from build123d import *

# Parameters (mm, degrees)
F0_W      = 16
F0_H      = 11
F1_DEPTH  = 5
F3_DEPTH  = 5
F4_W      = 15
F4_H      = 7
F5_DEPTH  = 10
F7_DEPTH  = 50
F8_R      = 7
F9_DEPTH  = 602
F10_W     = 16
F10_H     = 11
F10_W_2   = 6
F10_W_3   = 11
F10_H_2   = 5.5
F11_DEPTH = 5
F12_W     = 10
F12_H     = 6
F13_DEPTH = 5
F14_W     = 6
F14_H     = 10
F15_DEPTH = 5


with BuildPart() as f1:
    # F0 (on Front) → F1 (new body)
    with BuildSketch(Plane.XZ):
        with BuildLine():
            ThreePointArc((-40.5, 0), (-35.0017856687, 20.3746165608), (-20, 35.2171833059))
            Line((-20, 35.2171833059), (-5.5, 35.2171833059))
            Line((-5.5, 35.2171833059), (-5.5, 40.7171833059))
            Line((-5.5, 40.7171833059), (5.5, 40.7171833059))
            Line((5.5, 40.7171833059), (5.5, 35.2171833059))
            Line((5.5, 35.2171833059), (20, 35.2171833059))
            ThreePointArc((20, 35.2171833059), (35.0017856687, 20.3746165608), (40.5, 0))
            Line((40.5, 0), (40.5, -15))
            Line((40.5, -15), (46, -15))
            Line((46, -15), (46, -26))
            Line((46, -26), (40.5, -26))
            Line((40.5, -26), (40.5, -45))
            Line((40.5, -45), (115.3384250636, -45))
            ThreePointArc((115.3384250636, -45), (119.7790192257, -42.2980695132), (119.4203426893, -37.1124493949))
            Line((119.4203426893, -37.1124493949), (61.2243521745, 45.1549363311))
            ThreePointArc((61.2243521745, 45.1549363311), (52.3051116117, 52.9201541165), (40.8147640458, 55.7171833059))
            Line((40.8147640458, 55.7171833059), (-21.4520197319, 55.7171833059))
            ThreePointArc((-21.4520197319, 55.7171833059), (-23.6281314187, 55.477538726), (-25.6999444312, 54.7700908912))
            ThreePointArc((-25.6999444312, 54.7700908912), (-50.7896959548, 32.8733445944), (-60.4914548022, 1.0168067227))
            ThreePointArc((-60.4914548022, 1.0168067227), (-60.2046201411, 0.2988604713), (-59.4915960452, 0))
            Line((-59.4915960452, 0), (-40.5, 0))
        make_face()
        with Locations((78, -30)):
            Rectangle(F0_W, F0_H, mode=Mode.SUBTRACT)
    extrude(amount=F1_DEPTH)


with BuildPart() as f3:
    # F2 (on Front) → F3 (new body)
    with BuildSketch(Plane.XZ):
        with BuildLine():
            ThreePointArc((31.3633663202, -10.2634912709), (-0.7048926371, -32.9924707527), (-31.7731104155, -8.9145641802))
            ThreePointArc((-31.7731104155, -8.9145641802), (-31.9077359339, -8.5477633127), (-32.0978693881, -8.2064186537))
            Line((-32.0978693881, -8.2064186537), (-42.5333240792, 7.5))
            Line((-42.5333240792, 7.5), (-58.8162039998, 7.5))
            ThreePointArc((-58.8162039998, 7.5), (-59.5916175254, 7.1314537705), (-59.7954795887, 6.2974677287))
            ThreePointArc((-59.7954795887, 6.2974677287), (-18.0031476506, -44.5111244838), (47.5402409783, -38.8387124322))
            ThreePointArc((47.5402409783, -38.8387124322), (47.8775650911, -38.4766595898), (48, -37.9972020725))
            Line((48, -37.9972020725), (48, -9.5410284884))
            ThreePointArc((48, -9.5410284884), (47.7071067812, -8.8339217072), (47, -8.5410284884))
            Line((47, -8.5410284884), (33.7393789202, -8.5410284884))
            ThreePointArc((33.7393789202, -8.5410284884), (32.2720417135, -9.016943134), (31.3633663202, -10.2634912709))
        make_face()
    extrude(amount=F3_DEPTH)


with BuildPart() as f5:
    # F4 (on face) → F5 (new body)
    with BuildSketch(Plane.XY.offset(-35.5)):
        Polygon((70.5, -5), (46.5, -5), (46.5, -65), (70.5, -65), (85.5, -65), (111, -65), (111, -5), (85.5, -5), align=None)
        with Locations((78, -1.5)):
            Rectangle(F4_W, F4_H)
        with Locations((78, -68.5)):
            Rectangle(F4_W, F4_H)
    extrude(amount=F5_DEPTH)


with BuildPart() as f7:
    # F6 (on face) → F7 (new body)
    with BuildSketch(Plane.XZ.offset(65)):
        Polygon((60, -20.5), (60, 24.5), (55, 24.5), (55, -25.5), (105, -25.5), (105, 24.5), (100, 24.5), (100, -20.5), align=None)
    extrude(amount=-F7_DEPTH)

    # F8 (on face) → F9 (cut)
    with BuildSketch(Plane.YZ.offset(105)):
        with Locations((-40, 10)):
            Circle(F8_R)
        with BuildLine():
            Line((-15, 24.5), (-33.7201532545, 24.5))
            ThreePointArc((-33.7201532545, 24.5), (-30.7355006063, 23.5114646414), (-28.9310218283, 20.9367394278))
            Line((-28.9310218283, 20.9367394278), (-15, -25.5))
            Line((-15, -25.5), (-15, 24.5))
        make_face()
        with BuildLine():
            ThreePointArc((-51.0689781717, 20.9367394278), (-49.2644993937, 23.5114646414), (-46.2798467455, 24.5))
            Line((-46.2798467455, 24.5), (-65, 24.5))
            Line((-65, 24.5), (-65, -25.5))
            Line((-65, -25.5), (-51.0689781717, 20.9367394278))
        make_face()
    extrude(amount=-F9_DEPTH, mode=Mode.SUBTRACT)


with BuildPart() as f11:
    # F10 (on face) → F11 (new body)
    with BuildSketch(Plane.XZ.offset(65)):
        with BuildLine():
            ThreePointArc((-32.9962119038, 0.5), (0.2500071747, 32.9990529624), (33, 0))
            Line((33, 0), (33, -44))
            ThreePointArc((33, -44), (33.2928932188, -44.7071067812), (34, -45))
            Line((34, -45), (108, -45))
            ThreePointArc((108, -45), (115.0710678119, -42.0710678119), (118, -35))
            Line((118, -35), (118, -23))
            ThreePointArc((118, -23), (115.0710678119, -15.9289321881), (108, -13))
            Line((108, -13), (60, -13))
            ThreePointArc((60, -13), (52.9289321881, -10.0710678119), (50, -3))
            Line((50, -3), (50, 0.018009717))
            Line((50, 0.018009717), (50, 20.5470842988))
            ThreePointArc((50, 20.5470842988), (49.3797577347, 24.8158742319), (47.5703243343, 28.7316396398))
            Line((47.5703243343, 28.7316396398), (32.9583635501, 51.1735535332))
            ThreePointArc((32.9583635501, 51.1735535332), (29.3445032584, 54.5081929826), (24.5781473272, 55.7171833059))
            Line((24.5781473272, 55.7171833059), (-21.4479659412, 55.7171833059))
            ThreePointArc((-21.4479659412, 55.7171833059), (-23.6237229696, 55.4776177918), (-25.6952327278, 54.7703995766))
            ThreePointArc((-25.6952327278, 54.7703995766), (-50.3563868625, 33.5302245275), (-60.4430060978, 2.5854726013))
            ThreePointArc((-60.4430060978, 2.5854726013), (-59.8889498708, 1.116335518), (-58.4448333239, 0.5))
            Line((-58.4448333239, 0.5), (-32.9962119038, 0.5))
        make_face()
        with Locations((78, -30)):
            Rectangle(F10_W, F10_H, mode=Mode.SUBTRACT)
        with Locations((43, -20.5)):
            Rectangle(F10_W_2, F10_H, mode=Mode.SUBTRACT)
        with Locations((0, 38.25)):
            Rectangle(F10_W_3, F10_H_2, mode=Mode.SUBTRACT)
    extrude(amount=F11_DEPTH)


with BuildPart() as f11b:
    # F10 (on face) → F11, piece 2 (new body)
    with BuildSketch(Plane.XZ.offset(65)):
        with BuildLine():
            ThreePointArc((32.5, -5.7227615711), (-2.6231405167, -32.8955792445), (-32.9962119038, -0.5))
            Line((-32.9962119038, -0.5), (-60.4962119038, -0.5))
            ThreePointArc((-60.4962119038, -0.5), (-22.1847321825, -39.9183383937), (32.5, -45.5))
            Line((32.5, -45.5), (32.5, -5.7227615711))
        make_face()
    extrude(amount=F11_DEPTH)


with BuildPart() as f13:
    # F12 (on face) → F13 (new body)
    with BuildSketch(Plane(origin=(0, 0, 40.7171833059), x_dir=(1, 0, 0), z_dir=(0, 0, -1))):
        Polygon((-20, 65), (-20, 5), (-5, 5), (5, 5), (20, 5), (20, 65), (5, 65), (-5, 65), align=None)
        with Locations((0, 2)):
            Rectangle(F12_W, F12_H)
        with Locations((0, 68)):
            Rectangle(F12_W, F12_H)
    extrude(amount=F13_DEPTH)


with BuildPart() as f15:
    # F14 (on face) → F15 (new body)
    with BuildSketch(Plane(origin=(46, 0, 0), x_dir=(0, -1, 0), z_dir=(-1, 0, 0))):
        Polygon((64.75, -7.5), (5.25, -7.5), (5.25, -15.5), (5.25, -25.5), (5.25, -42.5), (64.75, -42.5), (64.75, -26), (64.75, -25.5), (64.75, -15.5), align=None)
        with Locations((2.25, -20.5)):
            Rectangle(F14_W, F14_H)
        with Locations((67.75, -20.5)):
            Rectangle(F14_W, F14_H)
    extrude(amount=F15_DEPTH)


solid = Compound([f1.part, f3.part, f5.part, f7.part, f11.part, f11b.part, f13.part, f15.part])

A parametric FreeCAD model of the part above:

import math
import FreeCAD as App
import Part
import Sketcher
Q = App.Units.Quantity

doc = App.newDocument("Part")
params = doc.addObject("Spreadsheet::Sheet", "Params")
for row, (alias, value) in enumerate([
    ("sketch1_radius", "5 mm"),
    ("sketch1_radius2", "25 mm"),
    ("sketch1_radius3", "10 mm"),
    ("sketch1_radius4", "1 mm"),
    ("sketch1_radius5", "40.5 mm"),
    ("pad1_length", "5 mm"),
    ("sketch2_radius", "33 mm"),
    ("sketch2_radius2", "1 mm"),
    ("sketch2_radius3", "2.5 mm"),
    ("pad2_length", "5 mm"),
    ("sketch3_width", "24 mm"),
    ("sketch3_width2", "15 mm"),
    ("sketch3_height", "60 mm"),
    ("sketch3_height2", "7 mm"),
    ("sketch3_width3", "25.5 mm"),
    ("pad3_length", "10 mm"),
    ("sketch4_width", "5 mm"),
    ("sketch4_width2", "50 mm"),
    ("sketch4_height", "45 mm"),
    ("pad4_length", "50 mm"),
    ("sketch5_diameter", "14 mm"),
    ("sketch5_radius", "5 mm"),
    ("sketch5_height", "50 mm"),
    ("pocket1_length", "602 mm"),
    ("sketch6_radius", "33 mm"),
    ("sketch6_radius2", "1 mm"),
    ("sketch6_radius3", "10 mm"),
    ("sketch6_radius4", "15 mm"),
    ("sketch6_radius5", "2 mm"),
    ("pad5_length", "5 mm"),
    ("sketch7_radius", "33 mm"),
    ("sketch7_width", "27.5 mm"),
    ("pad6_length", "5 mm"),
    ("sketch8_width", "15 mm"),
    ("sketch8_width2", "10 mm"),
    ("sketch8_height", "60 mm"),
    ("sketch8_height2", "6 mm"),
    ("pad7_length", "5 mm"),
    ("sketch9_width", "6 mm"),
    ("sketch9_height", "8 mm"),
    ("sketch9_height2", "10 mm"),
    ("sketch9_height3", "17 mm"),
    ("sketch9_width2", "59.5 mm"),
    ("pad8_length", "5 mm"),
], start=1):
    params.set(f"A{row}", alias)
    params.set(f"B{row}", "=" + value)
    params.setAlias(f"B{row}", alias)

body = doc.addObject("PartDesign::Body", "Body")

# Sketch on XZ plane
sketch1 = body.newObject("Sketcher::SketchObject", "Sketch")
sketch1.AttachmentSupport = (doc.getObject("XZ_Plane"), [""])
sketch1.MapMode = "FlatFace"
sketch1.addGeometry([
    Part.ArcOfCircle(Part.Circle(App.Vector(0, 0, 0), App.Vector(0, 0, 1), 40.5), math.radians(119.592442), math.radians(180)),  # 0
    Part.LineSegment(App.Vector(-20, 35.217183, 0), App.Vector(-5.5, 35.217183, 0)),  # 1
    Part.LineSegment(App.Vector(-5.5, 35.217183, 0), App.Vector(-5.5, 40.717183, 0)),  # 2
    Part.LineSegment(App.Vector(-5.5, 40.717183, 0), App.Vector(5.5, 40.717183, 0)),  # 3
    Part.LineSegment(App.Vector(5.5, 40.717183, 0), App.Vector(5.5, 35.217183, 0)),  # 4
    Part.LineSegment(App.Vector(5.5, 35.217183, 0), App.Vector(20, 35.217183, 0)),  # 5
    Part.ArcOfCircle(Part.Circle(App.Vector(0, 0, 0), App.Vector(0, 0, 1), 40.5), math.radians(0), math.radians(60.407558)),  # 6
    Part.LineSegment(App.Vector(40.5, 0, 0), App.Vector(40.5, -15, 0)),  # 7
    Part.LineSegment(App.Vector(40.5, -15, 0), App.Vector(46, -15, 0)),  # 8
    Part.LineSegment(App.Vector(46, -15, 0), App.Vector(46, -26, 0)),  # 9
    Part.LineSegment(App.Vector(46, -26, 0), App.Vector(40.5, -26, 0)),  # 10
    Part.LineSegment(App.Vector(40.5, -26, 0), App.Vector(40.5, -45, 0)),  # 11
    Part.LineSegment(App.Vector(40.5, -45, 0), App.Vector(115.338425, -45, 0)),  # 12
    Part.ArcOfCircle(Part.Circle(App.Vector(115.338425, -40, 0), App.Vector(0, 0, 1), 5), math.radians(-90), math.radians(35.275608)),  # 13
    Part.LineSegment(App.Vector(119.420343, -37.112449, 0), App.Vector(61.224352, 45.154936, 0)),  # 14
    Part.ArcOfCircle(Part.Circle(App.Vector(40.814764, 30.717183, 0), App.Vector(0, 0, 1), 25), math.radians(35.275608), math.radians(90)),  # 15
    Part.LineSegment(App.Vector(40.814764, 55.717183, 0), App.Vector(-21.45202, 55.717183, 0)),  # 16
    Part.ArcOfCircle(Part.Circle(App.Vector(-21.45202, 45.717183, 0), App.Vector(0, 0, 1), 10), math.radians(90), math.radians(115.137528)),  # 17
    Part.ArcOfCircle(Part.Circle(App.Vector(0, 0, 0), App.Vector(0, 0, 1), 60.5), math.radians(115.137528), math.radians(179.037)),  # 18
    Part.ArcOfCircle(Part.Circle(App.Vector(-59.491596, 1, 0), App.Vector(0, 0, 1), 1), math.radians(179.037), math.radians(270)),  # 19
    Part.LineSegment(App.Vector(-59.491596, 0, 0), App.Vector(-40.5, 0, 0)),  # 20
    Part.LineSegment(App.Vector(86, -35.5, 0), App.Vector(70, -35.5, 0)),  # 21
    Part.LineSegment(App.Vector(70, -35.5, 0), App.Vector(70, -24.5, 0)),  # 22
    Part.LineSegment(App.Vector(70, -24.5, 0), App.Vector(86, -24.5, 0)),  # 23
    Part.LineSegment(App.Vector(86, -24.5, 0), App.Vector(86, -35.5, 0)),  # 24
], False)
sketch1.addConstraint([
    Sketcher.Constraint("Coincident", 0, 1, 1, 1),
    Sketcher.Constraint("Coincident", 1, 2, 2, 1),
    Sketcher.Constraint("Coincident", 2, 2, 3, 1),
    Sketcher.Constraint("Coincident", 3, 2, 4, 1),
    Sketcher.Constraint("Coincident", 4, 2, 5, 1),
    Sketcher.Constraint("Coincident", 5, 2, 6, 2),
    Sketcher.Constraint("Tangent", 6, 1, 7, 1),
    Sketcher.Constraint("Coincident", 7, 2, 8, 1),
    Sketcher.Constraint("Coincident", 8, 2, 9, 1),
    Sketcher.Constraint("Coincident", 9, 2, 10, 1),
    Sketcher.Constraint("Coincident", 10, 2, 11, 1),
    Sketcher.Constraint("Coincident", 11, 2, 12, 1),
    Sketcher.Constraint("Tangent", 12, 2, 13, 1),
    Sketcher.Constraint("Tangent", 13, 2, 14, 1),
    Sketcher.Constraint("Tangent", 14, 2, 15, 1),
    Sketcher.Constraint("Tangent", 15, 2, 16, 1),
    Sketcher.Constraint("Tangent", 16, 2, 17, 1),
    Sketcher.Constraint("Tangent", 17, 2, 18, 1),
    Sketcher.Constraint("Tangent", 18, 2, 19, 1),
    Sketcher.Constraint("Tangent", 19, 2, 20, 1),
    Sketcher.Constraint("Coincident", 20, 2, 0, 2),
    Sketcher.Constraint("Coincident", 21, 2, 22, 1),
    Sketcher.Constraint("Coincident", 22, 2, 23, 1),
    Sketcher.Constraint("Coincident", 23, 2, 24, 1),
    Sketcher.Constraint("Coincident", 24, 2, 21, 1),
    Sketcher.Constraint("Horizontal", 1),
    Sketcher.Constraint("Vertical", 2),
    Sketcher.Constraint("Horizontal", 3),
    Sketcher.Constraint("Vertical", 4),
    Sketcher.Constraint("Horizontal", 5),
    Sketcher.Constraint("Vertical", 7),
    Sketcher.Constraint("Horizontal", 8),
    Sketcher.Constraint("Vertical", 9),
    Sketcher.Constraint("Horizontal", 10),
    Sketcher.Constraint("Vertical", 11),
    Sketcher.Constraint("Horizontal", 12),
    Sketcher.Constraint("Horizontal", 16),
    Sketcher.Constraint("Horizontal", 20),
    Sketcher.Constraint("Horizontal", 21),
    Sketcher.Constraint("Vertical", 22),
    Sketcher.Constraint("Horizontal", 23),
    Sketcher.Constraint("Vertical", 24),
    Sketcher.Constraint("Coincident", 0, 3, -1, 1),
    Sketcher.Constraint("Coincident", 6, 3, -1, 1),
    Sketcher.Constraint("Coincident", 18, 3, -1, 1),
    Sketcher.Constraint("Equal", 0, 6),
    Sketcher.Constraint("Symmetric", 1, 2, 4, 2, -2),
    Sketcher.Constraint("PointOnObject", 19, 2, -1),
    Sketcher.Constraint("Vertical", 7, 2, 10, 2),
    Sketcher.Constraint("Equal", 10, 2),
    Sketcher.Constraint("Equal", 3, 9),
    Sketcher.Constraint("Equal", 9, 22),
    Sketcher.Constraint("Radius", 13, Q("5 mm")),
    Sketcher.Constraint("Radius", 15, Q("25 mm")),
    Sketcher.Constraint("Radius", 17, Q("10 mm")),
    Sketcher.Constraint("Radius", 19, Q("1 mm")),
    Sketcher.Constraint("Radius", 0, Q("40.5 mm")),
    Sketcher.Constraint("Radius", 18, Q("60.5 mm")),
    Sketcher.Constraint("DistanceX", 3, 1, 3, 2, Q("11 mm")),
    Sketcher.Constraint("DistanceX", 21, 2, 21, 1, Q("16 mm")),
    Sketcher.Constraint("DistanceY", 7, 2, 7, 1, Q("15 mm")),
    Sketcher.Constraint("DistanceY", 11, 2, 11, 1, Q("19 mm")),
    Sketcher.Constraint("DistanceX", 1, 1, 1, 2, Q("14.5 mm")),
    Sketcher.Constraint("DistanceX", 8, 1, 8, 2, Q("5.5 mm")),
    Sketcher.Constraint("DistanceX", -1, 1, 21, 2, Q("70 mm")),
    Sketcher.Constraint("DistanceY", 2, 2, 17, 3, Q("5 mm")),
    Sketcher.Constraint("DistanceY", 21, 2, -1, 1, Q("35.5 mm")),
    Sketcher.Constraint("Distance", 14, Q("100.770512 mm")),
    Sketcher.Constraint("DistanceX", 12, 1, 12, 2, Q("74.838425 mm")),
])
sketch1.setExpression("Constraints[52]", "Params.sketch1_radius")
sketch1.setExpression("Constraints[53]", "Params.sketch1_radius2")
sketch1.setExpression("Constraints[54]", "Params.sketch1_radius3")
sketch1.setExpression("Constraints[55]", "Params.sketch1_radius4")
sketch1.setExpression("Constraints[56]", "Params.sketch1_radius5")
pad1 = body.newObject("PartDesign::Pad", "Pad")
pad1.Profile = sketch1
pad1.setExpression("Length", "Params.pad1_length")
body2 = doc.addObject("PartDesign::Body", "Body001")

# Sketch on XZ plane
sketch2 = body2.newObject("Sketcher::SketchObject", "Sketch001")
sketch2.AttachmentSupport = (doc.getObject("XZ_Plane001"), [""])
sketch2.MapMode = "FlatFace"
sketch2.addGeometry([
    Part.ArcOfCircle(Part.Circle(App.Vector(0, 0, 0), App.Vector(0, 0, 1), 33), math.radians(-164.327503), math.radians(-18.120403)),  # 0
    Part.ArcOfCircle(Part.Circle(App.Vector(-34.180164, -9.58991, 0), App.Vector(0, 0, 1), 2.5), math.radians(15.672497), math.radians(33.600342)),  # 1
    Part.LineSegment(App.Vector(-32.097869, -8.206419, 0), App.Vector(-42.533324, 7.5, 0)),  # 2
    Part.LineSegment(App.Vector(-42.533324, 7.5, 0), App.Vector(-58.816204, 7.5, 0)),  # 3
    Part.ArcOfCircle(Part.Circle(App.Vector(-58.816204, 6.5, 0), App.Vector(0, 0, 1), 1), math.radians(90), math.radians(191.685079)),  # 4
    Part.ArcOfCircle(Part.Circle(App.Vector(9.37866, 20.603957, 0), App.Vector(0, 0, 1), 70.638072), math.radians(-168.314921), math.radians(-57.299955)),  # 5
    Part.ArcOfCircle(Part.Circle(App.Vector(47, -37.997202, 0), App.Vector(0, 0, 1), 1), math.radians(-57.299955), math.radians(0)),  # 6
    Part.LineSegment(App.Vector(48, -37.997202, 0), App.Vector(48, -9.541028, 0)),  # 7
    Part.ArcOfCircle(Part.Circle(App.Vector(47, -9.541028, 0), App.Vector(0, 0, 1), 1), math.radians(0), math.radians(90)),  # 8
    Part.LineSegment(App.Vector(47, -8.541028, 0), App.Vector(33.739379, -8.541028, 0)),  # 9
    Part.ArcOfCircle(Part.Circle(App.Vector(33.739379, -11.041028, 0), App.Vector(0, 0, 1), 2.5), math.radians(90), math.radians(161.879597)),  # 10
], False)
sketch2.addConstraint([
    Sketcher.Constraint("Tangent", 0, 1, 1, 1),
    Sketcher.Constraint("Tangent", 1, 2, 2, 1),
    Sketcher.Constraint("Coincident", 2, 2, 3, 1),
    Sketcher.Constraint("Tangent", 3, 2, 4, 1),
    Sketcher.Constraint("Tangent", 4, 2, 5, 1),
    Sketcher.Constraint("Tangent", 5, 2, 6, 1),
    Sketcher.Constraint("Tangent", 6, 2, 7, 1),
    Sketcher.Constraint("Tangent", 7, 2, 8, 1),
    Sketcher.Constraint("Tangent", 8, 2, 9, 1),
    Sketcher.Constraint("Tangent", 9, 2, 10, 1),
    Sketcher.Constraint("Tangent", 10, 2, 0, 2),
    Sketcher.Constraint("Horizontal", 3),
    Sketcher.Constraint("Vertical", 7),
    Sketcher.Constraint("Horizontal", 9),
    Sketcher.Constraint("Coincident", 0, 3, -1, 1),
    Sketcher.Constraint("Equal", 4, 6),
    Sketcher.Constraint("Equal", 6, 8),
    Sketcher.Constraint("Equal", 1, 10),
    Sketcher.Constraint("Radius", 0, Q("33 mm")),
    Sketcher.Constraint("Radius", 4, Q("1 mm")),
    Sketcher.Constraint("Radius", 1, Q("2.5 mm")),
    Sketcher.Constraint("DistanceX", -1, 1, 6, 3, Q("47 mm")),
    Sketcher.Constraint("DistanceY", -1, 1, 4, 3, Q("6.5 mm")),
    Sketcher.Constraint("Radius", 5, Q("70.638072 mm")),
    Sketcher.Constraint("DistanceX", 3, 2, 3, 1, Q("16.28288 mm")),
    Sketcher.Constraint("DistanceX", 9, 2, 9, 1, Q("13.260621 mm")),
    Sketcher.Constraint("DistanceY", 7, 1, 7, 2, Q("28.456174 mm")),
    Sketcher.Constraint("DistanceY", 1, 3, -1, 1, Q("9.58991 mm")),
    Sketcher.Constraint("DistanceX", -1, 1, 5, 3, Q("9.37866 mm")),
])
sketch2.setExpression("Constraints[18]", "Params.sketch2_radius")
sketch2.setExpression("Constraints[19]", "Params.sketch2_radius2")
sketch2.setExpression("Constraints[20]", "Params.sketch2_radius3")
pad2 = body2.newObject("PartDesign::Pad", "Pad001")
pad2.Profile = sketch2
pad2.setExpression("Length", "Params.pad2_length")
body3 = doc.addObject("PartDesign::Body", "Body002")

# Sketch on XY plane
sketch3 = body3.newObject("Sketcher::SketchObject", "Sketch002")
sketch3.AttachmentSupport = (doc.getObject("XY_Plane002"), [""])
sketch3.MapMode = "FlatFace"
sketch3.AttachmentOffset = App.Placement(App.Vector(0, 0, -35.5), App.Rotation())
sketch3.addGeometry([
    Part.LineSegment(App.Vector(46.5, -5, 0), App.Vector(46.5, -65, 0)),  # 0
    Part.LineSegment(App.Vector(46.5, -65, 0), App.Vector(70.5, -65, 0)),  # 1
    Part.LineSegment(App.Vector(70.5, -65, 0), App.Vector(70.5, -72, 0)),  # 2
    Part.LineSegment(App.Vector(70.5, -72, 0), App.Vector(85.5, -72, 0)),  # 3
    Part.LineSegment(App.Vector(85.5, -72, 0), App.Vector(85.5, -65, 0)),  # 4
    Part.LineSegment(App.Vector(85.5, -65, 0), App.Vector(111, -65, 0)),  # 5
    Part.LineSegment(App.Vector(111, -65, 0), App.Vector(111, -5, 0)),  # 6
    Part.LineSegment(App.Vector(111, -5, 0), App.Vector(85.5, -5, 0)),  # 7
    Part.LineSegment(App.Vector(85.5, -5, 0), App.Vector(85.5, 2, 0)),  # 8
    Part.LineSegment(App.Vector(85.5, 2, 0), App.Vector(70.5, 2, 0)),  # 9
    Part.LineSegment(App.Vector(70.5, 2, 0), App.Vector(70.5, -5, 0)),  # 10
    Part.LineSegment(App.Vector(70.5, -5, 0), App.Vector(46.5, -5, 0)),  # 11
], False)
sketch3.addConstraint([
    Sketcher.Constraint("Coincident", 0, 2, 1, 1),
    Sketcher.Constraint("Coincident", 1, 2, 2, 1),
    Sketcher.Constraint("Coincident", 2, 2, 3, 1),
    Sketcher.Constraint("Coincident", 3, 2, 4, 1),
    Sketcher.Constraint("Coincident", 4, 2, 5, 1),
    Sketcher.Constraint("Coincident", 5, 2, 6, 1),
    Sketcher.Constraint("Coincident", 6, 2, 7, 1),
    Sketcher.Constraint("Coincident", 7, 2, 8, 1),
    Sketcher.Constraint("Coincident", 8, 2, 9, 1),
    Sketcher.Constraint("Coincident", 9, 2, 10, 1),
    Sketcher.Constraint("Coincident", 10, 2, 11, 1),
    Sketcher.Constraint("Coincident", 11, 2, 0, 1),
    Sketcher.Constraint("Vertical", 0),
    Sketcher.Constraint("Horizontal", 1),
    Sketcher.Constraint("Vertical", 2),
    Sketcher.Constraint("Horizontal", 3),
    Sketcher.Constraint("Vertical", 4),
    Sketcher.Constraint("Horizontal", 5),
    Sketcher.Constraint("Vertical", 6),
    Sketcher.Constraint("Horizontal", 7),
    Sketcher.Constraint("Vertical", 8),
    Sketcher.Constraint("Horizontal", 9),
    Sketcher.Constraint("Vertical", 10),
    Sketcher.Constraint("Horizontal", 11),
    Sketcher.Constraint("Horizontal", 1, 2, 4, 2),
    Sketcher.Constraint("Horizontal", 7, 2, 10, 2),
    Sketcher.Constraint("Vertical", 4, 2, 7, 2),
    Sketcher.Constraint("Vertical", 2, 2, 9, 2),
    Sketcher.Constraint("Equal", 4, 8),
    Sketcher.Constraint("DistanceX", 1, 1, 1, 2, Q("24 mm")),
    Sketcher.Constraint("DistanceX", 3, 1, 3, 2, Q("15 mm")),
    Sketcher.Constraint("DistanceY", 0, 2, 0, 1, Q("60 mm")),
    Sketcher.Constraint("DistanceY", 2, 2, 2, 1, Q("7 mm")),
    Sketcher.Constraint("DistanceX", 5, 1, 5, 2, Q("25.5 mm")),
    Sketcher.Constraint("DistanceY", 0, 2, -1, 1, Q("65 mm")),
    Sketcher.Constraint("DistanceX", -1, 1, 5, 2, Q("111 mm")),
])
sketch3.setExpression("Constraints[29]", "Params.sketch3_width")
sketch3.setExpression("Constraints[30]", "Params.sketch3_width2")
sketch3.setExpression("Constraints[31]", "Params.sketch3_height")
sketch3.setExpression("Constraints[32]", "Params.sketch3_height2")
sketch3.setExpression("Constraints[33]", "Params.sketch3_width3")
pad3 = body3.newObject("PartDesign::Pad", "Pad002")
pad3.Profile = sketch3
pad3.setExpression("Length", "Params.pad3_length")
body4 = doc.addObject("PartDesign::Body", "Body003")

# Sketch on XZ plane
sketch4 = body4.newObject("Sketcher::SketchObject", "Sketch003")
sketch4.AttachmentSupport = (doc.getObject("XZ_Plane003"), [""])
sketch4.MapMode = "FlatFace"
sketch4.AttachmentOffset = App.Placement(App.Vector(0, 0, 65), App.Rotation())
sketch4.addGeometry([
    Part.LineSegment(App.Vector(60, -20.5, 0), App.Vector(60, 24.5, 0)),  # 0
    Part.LineSegment(App.Vector(60, 24.5, 0), App.Vector(55, 24.5, 0)),  # 1
    Part.LineSegment(App.Vector(55, 24.5, 0), App.Vector(55, -25.5, 0)),  # 2
    Part.LineSegment(App.Vector(55, -25.5, 0), App.Vector(105, -25.5, 0)),  # 3
    Part.LineSegment(App.Vector(105, -25.5, 0), App.Vector(105, 24.5, 0)),  # 4
    Part.LineSegment(App.Vector(105, 24.5, 0), App.Vector(100, 24.5, 0)),  # 5
    Part.LineSegment(App.Vector(100, 24.5, 0), App.Vector(100, -20.5, 0)),  # 6
    Part.LineSegment(App.Vector(100, -20.5, 0), App.Vector(60, -20.5, 0)),  # 7
], False)
sketch4.addConstraint([
    Sketcher.Constraint("Coincident", 0, 2, 1, 1),
    Sketcher.Constraint("Coincident", 1, 2, 2, 1),
    Sketcher.Constraint("Coincident", 2, 2, 3, 1),
    Sketcher.Constraint("Coincident", 3, 2, 4, 1),
    Sketcher.Constraint("Coincident", 4, 2, 5, 1),
    Sketcher.Constraint("Coincident", 5, 2, 6, 1),
    Sketcher.Constraint("Coincident", 6, 2, 7, 1),
    Sketcher.Constraint("Coincident", 7, 2, 0, 1),
    Sketcher.Constraint("Vertical", 0),
    Sketcher.Constraint("Horizontal", 1),
    Sketcher.Constraint("Vertical", 2),
    Sketcher.Constraint("Horizontal", 3),
    Sketcher.Constraint("Vertical", 4),
    Sketcher.Constraint("Horizontal", 5),
    Sketcher.Constraint("Vertical", 6),
    Sketcher.Constraint("Horizontal", 7),
    Sketcher.Constraint("Horizontal", 1, 2, 4, 2),
    Sketcher.Constraint("Equal", 1, 5),
    Sketcher.Constraint("Equal", 3, 2),
    Sketcher.Constraint("DistanceX", 1, 2, 1, 1, Q("5 mm")),
    Sketcher.Constraint("DistanceX", 3, 1, 3, 2, Q("50 mm")),
    Sketcher.Constraint("DistanceY", 0, 1, 0, 2, Q("45 mm")),
    Sketcher.Constraint("DistanceX", -1, 1, 0, 2, Q("60 mm")),
    Sketcher.Constraint("DistanceY", -1, 1, 0, 2, Q("24.5 mm")),
])
sketch4.setExpression("Constraints[19]", "Params.sketch4_width")
sketch4.setExpression("Constraints[20]", "Params.sketch4_width2")
sketch4.setExpression("Constraints[21]", "Params.sketch4_height")
pad4 = body4.newObject("PartDesign::Pad", "Pad003")
pad4.Profile = sketch4
pad4.setExpression("Length", "Params.pad4_length")
pad4.Reversed = True

# Sketch on YZ plane
sketch5 = body4.newObject("Sketcher::SketchObject", "Sketch004")
sketch5.AttachmentSupport = (doc.getObject("YZ_Plane003"), [""])
sketch5.MapMode = "FlatFace"
sketch5.AttachmentOffset = App.Placement(App.Vector(0, 0, 105), App.Rotation())
sketch5.addGeometry([
    Part.Circle(App.Vector(-40, 10, 0), App.Vector(0, 0, 1), 7),  # 0
    Part.LineSegment(App.Vector(-15, 24.5, 0), App.Vector(-33.720153, 24.5, 0)),  # 1
    Part.ArcOfCircle(Part.Circle(App.Vector(-33.720153, 19.5, 0), App.Vector(0, 0, 1), 5), math.radians(16.699244), math.radians(90)),  # 2
    Part.LineSegment(App.Vector(-28.931022, 20.936739, 0), App.Vector(-15, -25.5, 0)),  # 3
    Part.LineSegment(App.Vector(-15, -25.5, 0), App.Vector(-15, 24.5, 0)),  # 4
    Part.ArcOfCircle(Part.Circle(App.Vector(-46.279847, 19.5, 0), App.Vector(0, 0, 1), 5), math.radians(90), math.radians(163.300756)),  # 5
    Part.LineSegment(App.Vector(-46.279847, 24.5, 0), App.Vector(-65, 24.5, 0)),  # 6
    Part.LineSegment(App.Vector(-65, 24.5, 0), App.Vector(-65, -25.5, 0)),  # 7
    Part.LineSegment(App.Vector(-65, -25.5, 0), App.Vector(-51.068978, 20.936739, 0)),  # 8
], False)
sketch5.addConstraint([
    Sketcher.Constraint("Tangent", 1, 2, 2, 2),
    Sketcher.Constraint("Tangent", 2, 1, 3, 1),
    Sketcher.Constraint("Coincident", 3, 2, 4, 1),
    Sketcher.Constraint("Coincident", 4, 2, 1, 1),
    Sketcher.Constraint("Tangent", 5, 1, 6, 1),
    Sketcher.Constraint("Coincident", 6, 2, 7, 1),
    Sketcher.Constraint("Coincident", 7, 2, 8, 1),
    Sketcher.Constraint("Tangent", 8, 2, 5, 2),
    Sketcher.Constraint("Horizontal", 1),
    Sketcher.Constraint("Vertical", 4),
    Sketcher.Constraint("Horizontal", 6),
    Sketcher.Constraint("Vertical", 7),
    Sketcher.Constraint("Equal", 2, 5),
    Sketcher.Constraint("Horizontal", 2, 3, 5, 3),
    Sketcher.Constraint("Horizontal", 3, 2, 7, 2),
    Sketcher.Constraint("Horizontal", 2, 1, 8, 2),
    Sketcher.Constraint("Diameter", 0, Q("14 mm")),
    Sketcher.Constraint("Radius", 2, Q("5 mm")),
    Sketcher.Constraint("DistanceY", 4, 1, 4, 2, Q("50 mm")),
    Sketcher.Constraint("DistanceX", 0, 3, -1, 1, Q("40 mm")),
    Sketcher.Constraint("DistanceY", -1, 1, 0, 3, Q("10 mm")),
    Sketcher.Constraint("DistanceX", 3, 2, -1, 1, Q("15 mm")),
    Sketcher.Constraint("DistanceX", 6, 2, -1, 1, Q("65 mm")),
    Sketcher.Constraint("DistanceY", -1, 1, 2, 3, Q("19.5 mm")),
    Sketcher.Constraint("Distance", 3, Q("48.481379 mm")),
])
sketch5.setExpression("Constraints[16]", "Params.sketch5_diameter")
sketch5.setExpression("Constraints[17]", "Params.sketch5_radius")
sketch5.setExpression("Constraints[18]", "Params.sketch5_height")
pocket1 = body4.newObject("PartDesign::Pocket", "Pocket")
pocket1.Profile = sketch5
pocket1.setExpression("Length", "Params.pocket1_length")
body5 = doc.addObject("PartDesign::Body", "Body004")

# Sketch on XZ plane
sketch6 = body5.newObject("Sketcher::SketchObject", "Sketch005")
sketch6.AttachmentSupport = (doc.getObject("XZ_Plane004"), [""])
sketch6.MapMode = "FlatFace"
sketch6.AttachmentOffset = App.Placement(App.Vector(0, 0, 65), App.Rotation())
sketch6.addGeometry([
    Part.ArcOfCircle(Part.Circle(App.Vector(0, 0, 0), App.Vector(0, 0, 1), 33), math.radians(0), math.radians(179.131849)),  # 0
    Part.LineSegment(App.Vector(33, 0, 0), App.Vector(33, -44, 0)),  # 1
    Part.ArcOfCircle(Part.Circle(App.Vector(34, -44, 0), App.Vector(0, 0, 1), 1), math.radians(180), math.radians(270)),  # 2
    Part.LineSegment(App.Vector(34, -45, 0), App.Vector(108, -45, 0)),  # 3
    Part.ArcOfCircle(Part.Circle(App.Vector(108, -35, 0), App.Vector(0, 0, 1), 10), math.radians(-90), math.radians(0)),  # 4
    Part.LineSegment(App.Vector(118, -35, 0), App.Vector(118, -23, 0)),  # 5
    Part.ArcOfCircle(Part.Circle(App.Vector(108, -23, 0), App.Vector(0, 0, 1), 10), math.radians(0), math.radians(90)),  # 6
    Part.LineSegment(App.Vector(108, -13, 0), App.Vector(60, -13, 0)),  # 7
    Part.ArcOfCircle(Part.Circle(App.Vector(60, -3, 0), App.Vector(0, 0, 1), 10), math.radians(180), math.radians(270)),  # 8
    Part.LineSegment(App.Vector(50, -3, 0), App.Vector(50, 20.547084, 0)),  # 9
    Part.ArcOfCircle(Part.Circle(App.Vector(35, 20.547084, 0), App.Vector(0, 0, 1), 15), math.radians(0), math.radians(33.068206)),  # 10
    Part.LineSegment(App.Vector(47.570324, 28.73164, 0), App.Vector(32.958364, 51.173554, 0)),  # 11
    Part.ArcOfCircle(Part.Circle(App.Vector(24.578147, 45.717183, 0), App.Vector(0, 0, 1), 10), math.radians(33.068206), math.radians(90)),  # 12
    Part.LineSegment(App.Vector(24.578147, 55.717183, 0), App.Vector(-21.447966, 55.717183, 0)),  # 13
    Part.ArcOfCircle(Part.Circle(App.Vector(-21.447966, 45.717183, 0), App.Vector(0, 0, 1), 10), math.radians(90), math.radians(115.133364)),  # 14
    Part.ArcOfCircle(Part.Circle(App.Vector(0, 0, 0), App.Vector(0, 0, 1), 60.498278), math.radians(115.133364), math.radians(177.550644)),  # 15
    Part.ArcOfCircle(Part.Circle(App.Vector(-58.444833, 2.5, 0), App.Vector(0, 0, 1), 2), math.radians(177.550644), math.radians(270)),  # 16
    Part.LineSegment(App.Vector(-58.444833, 0.5, 0), App.Vector(-32.996212, 0.5, 0)),  # 17
    Part.LineSegment(App.Vector(46, -26, 0), App.Vector(40, -26, 0)),  # 18
    Part.LineSegment(App.Vector(40, -26, 0), App.Vector(40, -15, 0)),  # 19
    Part.LineSegment(App.Vector(40, -15, 0), App.Vector(46, -15, 0)),  # 20
    Part.LineSegment(App.Vector(46, -15, 0), App.Vector(46, -26, 0)),  # 21
    Part.LineSegment(App.Vector(86, -35.5, 0), App.Vector(70, -35.5, 0)),  # 22
    Part.LineSegment(App.Vector(70, -35.5, 0), App.Vector(70, -24.5, 0)),  # 23
    Part.LineSegment(App.Vector(70, -24.5, 0), App.Vector(86, -24.5, 0)),  # 24
    Part.LineSegment(App.Vector(86, -24.5, 0), App.Vector(86, -35.5, 0)),  # 25
    Part.LineSegment(App.Vector(5.5, 35.5, 0), App.Vector(-5.5, 35.5, 0)),  # 26
    Part.LineSegment(App.Vector(-5.5, 35.5, 0), App.Vector(-5.5, 41, 0)),  # 27
    Part.LineSegment(App.Vector(-5.5, 41, 0), App.Vector(5.5, 41, 0)),  # 28
    Part.LineSegment(App.Vector(5.5, 41, 0), App.Vector(5.5, 35.5, 0)),  # 29
], False)
sketch6.addConstraint([
    Sketcher.Constraint("Tangent", 0, 1, 1, 1),
    Sketcher.Constraint("Tangent", 1, 2, 2, 1),
    Sketcher.Constraint("Tangent", 2, 2, 3, 1),
    Sketcher.Constraint("Tangent", 3, 2, 4, 1),
    Sketcher.Constraint("Tangent", 4, 2, 5, 1),
    Sketcher.Constraint("Tangent", 5, 2, 6, 1),
    Sketcher.Constraint("Tangent", 6, 2, 7, 1),
    Sketcher.Constraint("Tangent", 7, 2, 8, 2),
    Sketcher.Constraint("Tangent", 8, 1, 9, 1),
    Sketcher.Constraint("Tangent", 9, 2, 10, 1),
    Sketcher.Constraint("Tangent", 10, 2, 11, 1),
    Sketcher.Constraint("Tangent", 11, 2, 12, 1),
    Sketcher.Constraint("Tangent", 12, 2, 13, 1),
    Sketcher.Constraint("Tangent", 13, 2, 14, 1),
    Sketcher.Constraint("Tangent", 14, 2, 15, 1),
    Sketcher.Constraint("Tangent", 15, 2, 16, 1),
    Sketcher.Constraint("Tangent", 16, 2, 17, 1),
    Sketcher.Constraint("Coincident", 17, 2, 0, 2),
    Sketcher.Constraint("Coincident", 18, 2, 19, 1),
    Sketcher.Constraint("Coincident", 19, 2, 20, 1),
    Sketcher.Constraint("Coincident", 20, 2, 21, 1),
    Sketcher.Constraint("Coincident", 21, 2, 18, 1),
    Sketcher.Constraint("Coincident", 22, 2, 23, 1),
    Sketcher.Constraint("Coincident", 23, 2, 24, 1),
    Sketcher.Constraint("Coincident", 24, 2, 25, 1),
    Sketcher.Constraint("Coincident", 25, 2, 22, 1),
    Sketcher.Constraint("Coincident", 26, 2, 27, 1),
    Sketcher.Constraint("Coincident", 27, 2, 28, 1),
    Sketcher.Constraint("Coincident", 28, 2, 29, 1),
    Sketcher.Constraint("Coincident", 29, 2, 26, 1),
    Sketcher.Constraint("Vertical", 1),
    Sketcher.Constraint("Horizontal", 3),
    Sketcher.Constraint("Vertical", 5),
    Sketcher.Constraint("Horizontal", 7),
    Sketcher.Constraint("Vertical", 9),
    Sketcher.Constraint("Horizontal", 13),
    Sketcher.Constraint("Horizontal", 17),
    Sketcher.Constraint("Horizontal", 18),
    Sketcher.Constraint("Vertical", 19),
    Sketcher.Constraint("Horizontal", 20),
    Sketcher.Constraint("Vertical", 21),
    Sketcher.Constraint("Horizontal", 22),
    Sketcher.Constraint("Vertical", 23),
    Sketcher.Constraint("Horizontal", 24),
    Sketcher.Constraint("Vertical", 25),
    Sketcher.Constraint("Horizontal", 26),
    Sketcher.Constraint("Vertical", 27),
    Sketcher.Constraint("Horizontal", 28),
    Sketcher.Constraint("Vertical", 29),
    Sketcher.Constraint("Coincident", 0, 3, -1, 1),
    Sketcher.Constraint("Coincident", 15, 3, -1, 1),
    Sketcher.Constraint("Equal", 4, 6),
    Sketcher.Constraint("Equal", 6, 8),
    Sketcher.Constraint("Equal", 8, 12),
    Sketcher.Constraint("Equal", 12, 14),
    Sketcher.Constraint("Equal", 28, 19),
    Sketcher.Constraint("Equal", 21, 23),
    Sketcher.Constraint("Radius", 0, Q("33 mm")),
    Sketcher.Constraint("Radius", 2, Q("1 mm")),
    Sketcher.Constraint("Radius", 4, Q("10 mm")),
    Sketcher.Constraint("Radius", 10, Q("15 mm")),
    Sketcher.Constraint("Radius", 16, Q("2 mm")),
    Sketcher.Constraint("DistanceX", 3, 1, 3, 2, Q("74 mm")),
    Sketcher.Constraint("DistanceX", 7, 2, 7, 1, Q("48 mm")),
    Sketcher.Constraint("DistanceX", 18, 2, 18, 1, Q("6 mm")),
    Sketcher.Constraint("DistanceX", 22, 2, 22, 1, Q("16 mm")),
    Sketcher.Constraint("DistanceX", 26, 2, 26, 1, Q("11 mm")),
    Sketcher.Constraint("DistanceY", 1, 2, 1, 1, Q("44 mm")),
    Sketcher.Constraint("DistanceY", 5, 1, 5, 2, Q("12 mm")),
    Sketcher.Constraint("DistanceY", 27, 1, 27, 2, Q("5.5 mm")),
    Sketcher.Constraint("DistanceX", -1, 1, 18, 2, Q("40 mm")),
    Sketcher.Constraint("DistanceY", 18, 2, -1, 1, Q("26 mm")),
    Sketcher.Constraint("DistanceX", -1, 1, 22, 2, Q("70 mm")),
    Sketcher.Constraint("DistanceY", -1, 1, 27, 2, Q("41 mm")),
    Sketcher.Constraint("DistanceY", -1, 1, 16, 3, Q("2.5 mm")),
    Sketcher.Constraint("DistanceY", 22, 2, -1, 1, Q("35.5 mm")),
    Sketcher.Constraint("DistanceX", 26, 2, -1, 1, Q("5.5 mm")),
    Sketcher.Constraint("Radius", 15, Q("60.498278 mm")),
    Sketcher.Constraint("DistanceY", -1, 1, 14, 2, Q("54.7704 mm")),
    Sketcher.Constraint("DistanceY", 10, 3, 12, 3, Q("25.170099 mm")),
    Sketcher.Constraint("DistanceX", 13, 2, 13, 1, Q("46.026113 mm")),
])
sketch6.setExpression("Constraints[57]", "Params.sketch6_radius")
sketch6.setExpression("Constraints[58]", "Params.sketch6_radius2")
sketch6.setExpression("Constraints[59]", "Params.sketch6_radius3")
sketch6.setExpression("Constraints[60]", "Params.sketch6_radius4")
sketch6.setExpression("Constraints[61]", "Params.sketch6_radius5")
pad5 = body5.newObject("PartDesign::Pad", "Pad004")
pad5.Profile = sketch6
pad5.setExpression("Length", "Params.pad5_length")
body6 = doc.addObject("PartDesign::Body", "Body005")

# Sketch on XZ plane
sketch7 = body6.newObject("Sketcher::SketchObject", "Sketch006")
sketch7.AttachmentSupport = (doc.getObject("XZ_Plane005"), [""])
sketch7.MapMode = "FlatFace"
sketch7.AttachmentOffset = App.Placement(App.Vector(0, 0, 65), App.Rotation())
sketch7.addGeometry([
    Part.ArcOfCircle(Part.Circle(App.Vector(0, 0, 0), App.Vector(0, 0, 1), 33), math.radians(-179.131849), math.radians(-9.986551)),
    Part.LineSegment(App.Vector(-32.996212, -0.5, 0), App.Vector(-60.496212, -0.5, 0)),
    Part.ArcOfCircle(Part.Circle(App.Vector(12.827911, 32.438177, 0), App.Vector(0, 0, 1), 80.382526), math.radians(-155.809746), math.radians(-75.834068)),
    Part.LineSegment(App.Vector(32.5, -45.5, 0), App.Vector(32.5, -5.722762, 0)),
], False)
sketch7.addConstraint([
    Sketcher.Constraint("Coincident", 0, 1, 1, 1),
    Sketcher.Constraint("Coincident", 1, 2, 2, 1),
    Sketcher.Constraint("Coincident", 2, 2, 3, 1),
    Sketcher.Constraint("Coincident", 3, 2, 0, 2),
    Sketcher.Constraint("Horizontal", 1),
    Sketcher.Constraint("Vertical", 3),
    Sketcher.Constraint("Coincident", 0, 3, -1, 1),
    Sketcher.Constraint("Radius", 0, Q("33 mm")),
    Sketcher.Constraint("DistanceX", 1, 2, 1, 1, Q("27.5 mm")),
    Sketcher.Constraint("DistanceY", 2, 2, 0, 1, Q("45 mm")),
    Sketcher.Constraint("DistanceY", 0, 1, -1, 1, Q("0.5 mm")),
    Sketcher.Constraint("DistanceX", -1, 1, 2, 2, Q("32.5 mm")),
    Sketcher.Constraint("Radius", 2, Q("80.382526 mm")),
])
sketch7.setExpression("Constraints[7]", "Params.sketch7_radius")
sketch7.setExpression("Constraints[8]", "Params.sketch7_width")
pad6 = body6.newObject("PartDesign::Pad", "Pad005")
pad6.Profile = sketch7
pad6.setExpression("Length", "Params.pad6_length")
body7 = doc.addObject("PartDesign::Body", "Body006")

# Sketch on XY plane
sketch8 = body7.newObject("Sketcher::SketchObject", "Sketch007")
sketch8.AttachmentSupport = (doc.getObject("XY_Plane006"), [""])
sketch8.MapMode = "FlatFace"
sketch8.AttachmentOffset = App.Placement(App.Vector(0, 0, 40.717183), App.Rotation())
sketch8.addGeometry([
    Part.LineSegment(App.Vector(-20, -65, 0), App.Vector(-20, -5, 0)),  # 0
    Part.LineSegment(App.Vector(-20, -5, 0), App.Vector(-5, -5, 0)),  # 1
    Part.LineSegment(App.Vector(-5, -5, 0), App.Vector(-5, 1, 0)),  # 2
    Part.LineSegment(App.Vector(-5, 1, 0), App.Vector(5, 1, 0)),  # 3
    Part.LineSegment(App.Vector(5, 1, 0), App.Vector(5, -5, 0)),  # 4
    Part.LineSegment(App.Vector(5, -5, 0), App.Vector(20, -5, 0)),  # 5
    Part.LineSegment(App.Vector(20, -5, 0), App.Vector(20, -65, 0)),  # 6
    Part.LineSegment(App.Vector(20, -65, 0), App.Vector(5, -65, 0)),  # 7
    Part.LineSegment(App.Vector(5, -65, 0), App.Vector(5, -71, 0)),  # 8
    Part.LineSegment(App.Vector(5, -71, 0), App.Vector(-5, -71, 0)),  # 9
    Part.LineSegment(App.Vector(-5, -71, 0), App.Vector(-5, -65, 0)),  # 10
    Part.LineSegment(App.Vector(-5, -65, 0), App.Vector(-20, -65, 0)),  # 11
], False)
sketch8.addConstraint([
    Sketcher.Constraint("Coincident", 0, 2, 1, 1),
    Sketcher.Constraint("Coincident", 1, 2, 2, 1),
    Sketcher.Constraint("Coincident", 2, 2, 3, 1),
    Sketcher.Constraint("Coincident", 3, 2, 4, 1),
    Sketcher.Constraint("Coincident", 4, 2, 5, 1),
    Sketcher.Constraint("Coincident", 5, 2, 6, 1),
    Sketcher.Constraint("Coincident", 6, 2, 7, 1),
    Sketcher.Constraint("Coincident", 7, 2, 8, 1),
    Sketcher.Constraint("Coincident", 8, 2, 9, 1),
    Sketcher.Constraint("Coincident", 9, 2, 10, 1),
    Sketcher.Constraint("Coincident", 10, 2, 11, 1),
    Sketcher.Constraint("Coincident", 11, 2, 0, 1),
    Sketcher.Constraint("Vertical", 0),
    Sketcher.Constraint("Horizontal", 1),
    Sketcher.Constraint("Vertical", 2),
    Sketcher.Constraint("Horizontal", 3),
    Sketcher.Constraint("Vertical", 4),
    Sketcher.Constraint("Horizontal", 5),
    Sketcher.Constraint("Vertical", 6),
    Sketcher.Constraint("Horizontal", 7),
    Sketcher.Constraint("Vertical", 8),
    Sketcher.Constraint("Horizontal", 9),
    Sketcher.Constraint("Vertical", 10),
    Sketcher.Constraint("Horizontal", 11),
    Sketcher.Constraint("Symmetric", 1, 2, 4, 2, -2),
    Sketcher.Constraint("Symmetric", 7, 2, 10, 2, -2),
    Sketcher.Constraint("Vertical", 4, 2, 7, 2),
    Sketcher.Constraint("Equal", 1, 5),
    Sketcher.Constraint("Equal", 4, 8),
    Sketcher.Constraint("DistanceX", 1, 1, 1, 2, Q("15 mm")),
    Sketcher.Constraint("DistanceX", 3, 1, 3, 2, Q("10 mm")),
    Sketcher.Constraint("DistanceY", 0, 1, 0, 2, Q("60 mm")),
    Sketcher.Constraint("DistanceY", 2, 1, 2, 2, Q("6 mm")),
    Sketcher.Constraint("DistanceY", 0, 2, -1, 1, Q("5 mm")),
])
sketch8.setExpression("Constraints[29]", "Params.sketch8_width")
sketch8.setExpression("Constraints[30]", "Params.sketch8_width2")
sketch8.setExpression("Constraints[31]", "Params.sketch8_height")
sketch8.setExpression("Constraints[32]", "Params.sketch8_height2")
pad7 = body7.newObject("PartDesign::Pad", "Pad006")
pad7.Profile = sketch8
pad7.setExpression("Length", "Params.pad7_length")
pad7.Reversed = True
body8 = doc.addObject("PartDesign::Body", "Body007")

# Sketch on YZ plane
sketch9 = body8.newObject("Sketcher::SketchObject", "Sketch008")
sketch9.AttachmentSupport = (doc.getObject("YZ_Plane007"), [""])
sketch9.MapMode = "FlatFace"
sketch9.AttachmentOffset = App.Placement(App.Vector(0, 0, 46), App.Rotation())
sketch9.addGeometry([
    Part.LineSegment(App.Vector(-64.75, -7.5, 0), App.Vector(-5.25, -7.5, 0)),  # 0
    Part.LineSegment(App.Vector(-5.25, -7.5, 0), App.Vector(-5.25, -15.5, 0)),  # 1
    Part.LineSegment(App.Vector(-5.25, -15.5, 0), App.Vector(0.75, -15.5, 0)),  # 2
    Part.LineSegment(App.Vector(0.75, -15.5, 0), App.Vector(0.75, -25.5, 0)),  # 3
    Part.LineSegment(App.Vector(0.75, -25.5, 0), App.Vector(-5.25, -25.5, 0)),  # 4
    Part.LineSegment(App.Vector(-5.25, -25.5, 0), App.Vector(-5.25, -42.5, 0)),  # 5
    Part.LineSegment(App.Vector(-5.25, -42.5, 0), App.Vector(-64.75, -42.5, 0)),  # 6
    Part.LineSegment(App.Vector(-64.75, -42.5, 0), App.Vector(-64.75, -25.5, 0)),  # 7
    Part.LineSegment(App.Vector(-64.75, -25.5, 0), App.Vector(-70.75, -25.5, 0)),  # 8
    Part.LineSegment(App.Vector(-70.75, -25.5, 0), App.Vector(-70.75, -15.5, 0)),  # 9
    Part.LineSegment(App.Vector(-70.75, -15.5, 0), App.Vector(-64.75, -15.5, 0)),  # 10
    Part.LineSegment(App.Vector(-64.75, -15.5, 0), App.Vector(-64.75, -7.5, 0)),  # 11
], False)
sketch9.addConstraint([
    Sketcher.Constraint("Coincident", 0, 2, 1, 1),
    Sketcher.Constraint("Coincident", 1, 2, 2, 1),
    Sketcher.Constraint("Coincident", 2, 2, 3, 1),
    Sketcher.Constraint("Coincident", 3, 2, 4, 1),
    Sketcher.Constraint("Coincident", 4, 2, 5, 1),
    Sketcher.Constraint("Coincident", 5, 2, 6, 1),
    Sketcher.Constraint("Coincident", 6, 2, 7, 1),
    Sketcher.Constraint("Coincident", 7, 2, 8, 1),
    Sketcher.Constraint("Coincident", 8, 2, 9, 1),
    Sketcher.Constraint("Coincident", 9, 2, 10, 1),
    Sketcher.Constraint("Coincident", 10, 2, 11, 1),
    Sketcher.Constraint("Coincident", 11, 2, 0, 1),
    Sketcher.Constraint("Horizontal", 0),
    Sketcher.Constraint("Vertical", 1),
    Sketcher.Constraint("Horizontal", 2),
    Sketcher.Constraint("Vertical", 3),
    Sketcher.Constraint("Horizontal", 4),
    Sketcher.Constraint("Vertical", 5),
    Sketcher.Constraint("Horizontal", 6),
    Sketcher.Constraint("Vertical", 7),
    Sketcher.Constraint("Horizontal", 8),
    Sketcher.Constraint("Vertical", 9),
    Sketcher.Constraint("Horizontal", 10),
    Sketcher.Constraint("Vertical", 11),
    Sketcher.Constraint("Horizontal", 4, 2, 7, 2),
    Sketcher.Constraint("Horizontal", 2, 2, 9, 2),
    Sketcher.Constraint("Vertical", 1, 2, 4, 2),
    Sketcher.Constraint("Vertical", 7, 2, 10, 2),
    Sketcher.Constraint("Equal", 4, 8),
    Sketcher.Constraint("DistanceX", 2, 1, 2, 2, Q("6 mm")),
    Sketcher.Constraint("DistanceY", 1, 2, 1, 1, Q("8 mm")),
    Sketcher.Constraint("DistanceY", 3, 2, 3, 1, Q("10 mm")),
    Sketcher.Constraint("DistanceY", 5, 2, 5, 1, Q("17 mm")),
    Sketcher.Constraint("DistanceX", 0, 1, 0, 2, Q("59.5 mm")),
    Sketcher.Constraint("DistanceY", 0, 2, -1, 1, Q("7.5 mm")),
    Sketcher.Constraint("DistanceX", 0, 2, -1, 1, Q("5.25 mm")),
])
sketch9.setExpression("Constraints[29]", "Params.sketch9_width")
sketch9.setExpression("Constraints[30]", "Params.sketch9_height")
sketch9.setExpression("Constraints[31]", "Params.sketch9_height2")
sketch9.setExpression("Constraints[32]", "Params.sketch9_height3")
sketch9.setExpression("Constraints[33]", "Params.sketch9_width2")
pad8 = body8.newObject("PartDesign::Pad", "Pad007")
pad8.Profile = sketch9
pad8.setExpression("Length", "Params.pad8_length")
pad8.Reversed = True

doc.recompute()
